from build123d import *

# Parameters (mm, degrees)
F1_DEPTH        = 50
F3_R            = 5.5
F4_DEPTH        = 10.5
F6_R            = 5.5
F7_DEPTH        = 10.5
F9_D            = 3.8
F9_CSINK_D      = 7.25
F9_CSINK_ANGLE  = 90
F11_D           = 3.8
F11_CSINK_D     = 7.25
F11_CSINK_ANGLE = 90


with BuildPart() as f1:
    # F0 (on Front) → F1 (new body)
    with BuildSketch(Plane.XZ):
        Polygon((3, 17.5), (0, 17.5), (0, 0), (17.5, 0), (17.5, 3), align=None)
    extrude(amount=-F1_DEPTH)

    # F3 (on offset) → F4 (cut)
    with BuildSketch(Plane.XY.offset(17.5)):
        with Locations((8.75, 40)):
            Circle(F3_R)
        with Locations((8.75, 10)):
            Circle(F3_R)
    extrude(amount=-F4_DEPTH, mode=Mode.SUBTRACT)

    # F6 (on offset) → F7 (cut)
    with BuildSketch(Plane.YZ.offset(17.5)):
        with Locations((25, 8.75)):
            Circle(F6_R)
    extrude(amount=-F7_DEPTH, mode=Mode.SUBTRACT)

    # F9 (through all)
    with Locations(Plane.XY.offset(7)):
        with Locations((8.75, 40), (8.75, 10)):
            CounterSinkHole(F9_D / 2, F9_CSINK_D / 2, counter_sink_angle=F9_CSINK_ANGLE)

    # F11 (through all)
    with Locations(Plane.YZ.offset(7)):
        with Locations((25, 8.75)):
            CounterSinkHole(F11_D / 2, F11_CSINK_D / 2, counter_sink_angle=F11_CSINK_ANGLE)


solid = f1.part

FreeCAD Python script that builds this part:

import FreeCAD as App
import Part
import Sketcher
Q = App.Units.Quantity

doc = App.newDocument("Part")
params = doc.addObject("Spreadsheet::Sheet", "Params")
for row, (alias, value) in enumerate([
    ("sketch1_width", "3 mm"),
    ("sketch1_width2", "17.5 mm"),
    ("pad1_length", "50 mm"),
    ("sketch2_diameter", "11 mm"),
    ("pocket1_length", "10.5 mm"),
    ("sketch3_diameter", "11 mm"),
    ("pocket2_length", "10.5 mm"),
    ("sketch4_diameter", "3.8 mm"),
    ("hole_diameter", "3.8 mm"),
    ("hole_csink_diameter", "7.25 mm"),
    ("sketch5_diameter", "3.8 mm"),
    ("hole2_diameter", "3.8 mm"),
    ("hole2_csink_diameter", "7.25 mm"),
], start=1):
    params.set(f"A{row}", alias)
    params.set(f"B{row}", "=" + value)
    params.setAlias(f"B{row}", alias)

body = doc.addObject("PartDesign::Body", "Body")

# Sketch on XZ plane
sketch1 = doc.addObject("Sketcher::SketchObject", "Sketch")
body.addObject(sketch1)
sketch1.AttachmentSupport = (doc.XZ_Plane, [""])
sketch1.MapMode = "FlatFace"
sketch1.addGeometry([
    Part.LineSegment(App.Vector(3, 17.5, 0), App.Vector(0, 17.5, 0)),  # 0
    Part.LineSegment(App.Vector(0, 17.5, 0), App.Vector(0, 0, 0)),  # 1
    Part.LineSegment(App.Vector(0, 0, 0), App.Vector(17.5, 0, 0)),  # 2
    Part.LineSegment(App.Vector(17.5, 0, 0), App.Vector(17.5, 3, 0)),  # 3
    Part.LineSegment(App.Vector(17.5, 3, 0), App.Vector(3, 17.5, 0)),  # 4
], False)
sketch1.addConstraint([
    Sketcher.Constraint("Coincident", 0, 2, 1, 1),
    Sketcher.Constraint("Coincident", 1, 2, 2, 1),
    Sketcher.Constraint("Coincident", 2, 2, 3, 1),
    Sketcher.Constraint("Coincident", 3, 2, 4, 1),
    Sketcher.Constraint("Coincident", 4, 2, 0, 1),
    Sketcher.Constraint("Horizontal", 0),
    Sketcher.Constraint("Vertical", 1),
    Sketcher.Constraint("Horizontal", 2),
    Sketcher.Constraint("Vertical", 3),
    Sketcher.Constraint("Coincident", 1, 2, -1, 1),
    Sketcher.Constraint("Equal", 2, 1),
    Sketcher.Constraint("Equal", 0, 3),
    Sketcher.Constraint("DistanceX", 0, 2, 0, 1, Q("3 mm")),
    Sketcher.Constraint("DistanceX", 2, 1, 2, 2, Q("17.5 mm")),
])
sketch1.setExpression("Constraints[12]", "Params.sketch1_width")
sketch1.setExpression("Constraints[13]", "Params.sketch1_width2")
pad1 = doc.addObject("PartDesign::Pad", "Pad")
body.addObject(pad1)
pad1.Profile = sketch1
pad1.setExpression("Length", "Params.pad1_length")
pad1.Reversed = True

# Sketch on XY plane
sketch2 = doc.addObject("Sketcher::SketchObject", "Sketch001")
body.addObject(sketch2)
sketch2.AttachmentSupport = (doc.XY_Plane, [""])
sketch2.MapMode = "FlatFace"
sketch2.AttachmentOffset = App.Placement(App.Vector(0, 0, 17.5), App.Rotation())
sketch2.addGeometry([
    Part.Circle(App.Vector(8.75, 40, 0), App.Vector(0, 0, 1), 5.5),
    Part.Circle(App.Vector(8.75, 10, 0), App.Vector(0, 0, 1), 5.5),
], False)
sketch2.addConstraint([
    Sketcher.Constraint("Equal", 0, 1),
    Sketcher.Constraint("Vertical", 0, 3, 1, 3),
    Sketcher.Constraint("Diameter", 0, Q("11 mm")),
    Sketcher.Constraint("DistanceY", -1, 1, 0, 3, Q("40 mm")),
    Sketcher.Constraint("DistanceY", -1, 1, 1, 3, Q("10 mm")),
    Sketcher.Constraint("DistanceX", -1, 1, 0, 3, Q("8.75 mm")),
])
sketch2.setExpression("Constraints[2]", "Params.sketch2_diameter")
pocket1 = doc.addObject("PartDesign::Pocket", "Pocket")
body.addObject(pocket1)
pocket1.Profile = sketch2
pocket1.setExpression("Length", "Params.pocket1_length")

# Sketch on YZ plane
sketch3 = doc.addObject("Sketcher::SketchObject", "Sketch002")
body.addObject(sketch3)
sketch3.AttachmentSupport = (doc.YZ_Plane, [""])
sketch3.MapMode = "FlatFace"
sketch3.AttachmentOffset = App.Placement(App.Vector(0, 0, 17.5), App.Rotation())
sketch3.addGeometry(Part.Circle(App.Vector(25, 8.75, 0), App.Vector(0, 0, 1), 5.5), False)
sketch3.addConstraint([
    Sketcher.Constraint("Diameter", 0, Q("11 mm")),
    Sketcher.Constraint("DistanceX", -1, 1, 0, 3, Q("25 mm")),
    Sketcher.Constraint("DistanceY", -1, 1, 0, 3, Q("8.75 mm")),
])
sketch3.setExpression("Constraints[0]", "Params.sketch3_diameter")
pocket2 = doc.addObject("PartDesign::Pocket", "Pocket001")
body.addObject(pocket2)
pocket2.Profile = sketch3
pocket2.setExpression("Length", "Params.pocket2_length")

# Sketch on XY plane
sketch4 = doc.addObject("Sketcher::SketchObject", "Sketch003")
body.addObject(sketch4)
sketch4.AttachmentSupport = (doc.XY_Plane, [""])
sketch4.MapMode = "FlatFace"
sketch4.AttachmentOffset = App.Placement(App.Vector(0, 0, 7), App.Rotation())
sketch4.addGeometry([
    Part.Circle(App.Vector(8.75, 40, 0), App.Vector(0, 0, 1), 1.9),
    Part.Circle(App.Vector(8.75, 10, 0), App.Vector(0, 0, 1), 1.9),
], False)
sketch4.addConstraint([
    Sketcher.Constraint("Equal", 0, 1),
    Sketcher.Constraint("Vertical", 0, 3, 1, 3),
    Sketcher.Constraint("Diameter", 0, Q("3.8 mm")),
    Sketcher.Constraint("DistanceY", -1, 1, 0, 3, Q("40 mm")),
    Sketcher.Constraint("DistanceY", -1, 1, 1, 3, Q("10 mm")),
    Sketcher.Constraint("DistanceX", -1, 1, 0, 3, Q("8.75 mm")),
])
sketch4.setExpression("Constraints[2]", "Params.sketch4_diameter")
doc.recompute()
hole = doc.addObject("PartDesign::Hole", "Hole")
body.addObject(hole)
hole.Profile = sketch4
hole.ThreadType = "None"
hole.setExpression("Diameter", "Params.hole_diameter")
hole.DepthType = "ThroughAll"
hole.HoleCutType = "Countersink"
hole.setExpression("HoleCutDiameter", "Params.hole_csink_diameter")
hole.HoleCutCountersinkAngle = 90

# Sketch on YZ plane
sketch5 = doc.addObject("Sketcher::SketchObject", "Sketch004")
body.addObject(sketch5)
sketch5.AttachmentSupport = (doc.YZ_Plane, [""])
sketch5.MapMode = "FlatFace"
sketch5.AttachmentOffset = App.Placement(App.Vector(0, 0, 7), App.Rotation())
sketch5.addGeometry(Part.Circle(App.Vector(25, 8.75, 0), App.Vector(0, 0, 1), 1.9), False)
sketch5.addConstraint([
    Sketcher.Constraint("Diameter", 0, Q("3.8 mm")),
    Sketcher.Constraint("DistanceX", -1, 1, 0, 3, Q("25 mm")),
    Sketcher.Constraint("DistanceY", -1, 1, 0, 3, Q("8.75 mm")),
])
sketch5.setExpression("Constraints[0]", "Params.sketch5_diameter")
doc.recompute()
hole2 = doc.addObject("PartDesign::Hole", "Hole001")
body.addObject(hole2)
hole2.Profile = sketch5
hole2.ThreadType = "None"
hole2.setExpression("Diameter", "Params.hole2_diameter")
hole2.DepthType = "ThroughAll"
hole2.HoleCutType = "Countersink"
hole2.setExpression("HoleCutDiameter", "Params.hole2_csink_diameter")
hole2.HoleCutCountersinkAngle = 90

doc.recompute()
